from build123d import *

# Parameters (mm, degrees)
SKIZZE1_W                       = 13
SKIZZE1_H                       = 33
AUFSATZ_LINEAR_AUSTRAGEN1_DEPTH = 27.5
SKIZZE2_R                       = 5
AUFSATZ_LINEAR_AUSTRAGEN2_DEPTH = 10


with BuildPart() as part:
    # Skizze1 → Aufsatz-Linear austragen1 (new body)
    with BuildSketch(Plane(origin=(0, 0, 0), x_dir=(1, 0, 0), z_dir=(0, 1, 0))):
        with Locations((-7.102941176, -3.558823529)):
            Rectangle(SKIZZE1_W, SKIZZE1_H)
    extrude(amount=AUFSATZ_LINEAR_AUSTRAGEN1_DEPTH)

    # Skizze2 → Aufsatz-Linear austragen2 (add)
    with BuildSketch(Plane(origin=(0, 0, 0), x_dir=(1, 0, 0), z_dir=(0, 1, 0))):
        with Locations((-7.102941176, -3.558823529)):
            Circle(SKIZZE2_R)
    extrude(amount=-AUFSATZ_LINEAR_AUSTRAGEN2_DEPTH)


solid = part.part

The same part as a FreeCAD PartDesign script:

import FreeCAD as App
import Part
import Sketcher
from FreeCAD import Vector
Q = App.Units.Quantity

doc = App.newDocument("Part")
body = doc.addObject("PartDesign::Body", "Body")

# Sketch on XZ plane
sketch1 = body.newObject("Sketcher::SketchObject", "Sketch")
sketch1.AttachmentSupport = (doc.getObject("XZ_Plane"), [""])
sketch1.MapMode = "FlatFace"
sketch1.addGeometry([
    Part.LineSegment(Vector(-14, -13, 0), Vector(-14, 20, 0)),
    Part.LineSegment(Vector(-14, 20, 0), Vector(-1, 20, 0)),
    Part.LineSegment(Vector(-1, 20, 0), Vector(-1, -13, 0)),
    Part.LineSegment(Vector(-1, -13, 0), Vector(-14, -13, 0)),
], False)
sketch1.addConstraint([
    Sketcher.Constraint("Coincident", 0, 2, 1, 1),
    Sketcher.Constraint("Coincident", 1, 2, 2, 1),
    Sketcher.Constraint("Coincident", 2, 2, 3, 1),
    Sketcher.Constraint("Coincident", 3, 2, 0, 1),
    Sketcher.Constraint("Vertical", 0),
    Sketcher.Constraint("Horizontal", 1),
    Sketcher.Constraint("Vertical", 2),
    Sketcher.Constraint("Horizontal", 3),
    Sketcher.Constraint("DistanceX", 1, 1, 1, 2, Q("13 mm")),
    Sketcher.Constraint("DistanceY", 0, 1, 0, 2, Q("33 mm")),
    Sketcher.Constraint("DistanceX", 0, 2, -1, 1, Q("13.602941 mm")),
    Sketcher.Constraint("DistanceY", -1, 1, 0, 2, Q("20.058824 mm")),
])
pad1 = body.newObject("PartDesign::Pad", "Pad")
pad1.Profile = sketch1
pad1.Length = 27.5
pad1.Reversed = True

# Sketch on XZ plane
sketch2 = body.newObject("Sketcher::SketchObject", "Sketch001")
sketch2.AttachmentSupport = (doc.getObject("XZ_Plane"), [""])
sketch2.MapMode = "FlatFace"
sketch2.addGeometry(Part.Circle(Vector(-7, 4, 0), Vector(0, 0, 1), 5), False)
sketch2.addConstraint([
    Sketcher.Constraint("Diameter", 0, Q("10 mm")),
    Sketcher.Constraint("DistanceX", 0, 3, -1, 1, Q("7.102941 mm")),
    Sketcher.Constraint("DistanceY", -1, 1, 0, 3, Q("3.558824 mm")),
])
pad2 = body.newObject("PartDesign::Pad", "Pad001")
pad2.Profile = sketch2
pad2.Length = 10

doc.recompute()
